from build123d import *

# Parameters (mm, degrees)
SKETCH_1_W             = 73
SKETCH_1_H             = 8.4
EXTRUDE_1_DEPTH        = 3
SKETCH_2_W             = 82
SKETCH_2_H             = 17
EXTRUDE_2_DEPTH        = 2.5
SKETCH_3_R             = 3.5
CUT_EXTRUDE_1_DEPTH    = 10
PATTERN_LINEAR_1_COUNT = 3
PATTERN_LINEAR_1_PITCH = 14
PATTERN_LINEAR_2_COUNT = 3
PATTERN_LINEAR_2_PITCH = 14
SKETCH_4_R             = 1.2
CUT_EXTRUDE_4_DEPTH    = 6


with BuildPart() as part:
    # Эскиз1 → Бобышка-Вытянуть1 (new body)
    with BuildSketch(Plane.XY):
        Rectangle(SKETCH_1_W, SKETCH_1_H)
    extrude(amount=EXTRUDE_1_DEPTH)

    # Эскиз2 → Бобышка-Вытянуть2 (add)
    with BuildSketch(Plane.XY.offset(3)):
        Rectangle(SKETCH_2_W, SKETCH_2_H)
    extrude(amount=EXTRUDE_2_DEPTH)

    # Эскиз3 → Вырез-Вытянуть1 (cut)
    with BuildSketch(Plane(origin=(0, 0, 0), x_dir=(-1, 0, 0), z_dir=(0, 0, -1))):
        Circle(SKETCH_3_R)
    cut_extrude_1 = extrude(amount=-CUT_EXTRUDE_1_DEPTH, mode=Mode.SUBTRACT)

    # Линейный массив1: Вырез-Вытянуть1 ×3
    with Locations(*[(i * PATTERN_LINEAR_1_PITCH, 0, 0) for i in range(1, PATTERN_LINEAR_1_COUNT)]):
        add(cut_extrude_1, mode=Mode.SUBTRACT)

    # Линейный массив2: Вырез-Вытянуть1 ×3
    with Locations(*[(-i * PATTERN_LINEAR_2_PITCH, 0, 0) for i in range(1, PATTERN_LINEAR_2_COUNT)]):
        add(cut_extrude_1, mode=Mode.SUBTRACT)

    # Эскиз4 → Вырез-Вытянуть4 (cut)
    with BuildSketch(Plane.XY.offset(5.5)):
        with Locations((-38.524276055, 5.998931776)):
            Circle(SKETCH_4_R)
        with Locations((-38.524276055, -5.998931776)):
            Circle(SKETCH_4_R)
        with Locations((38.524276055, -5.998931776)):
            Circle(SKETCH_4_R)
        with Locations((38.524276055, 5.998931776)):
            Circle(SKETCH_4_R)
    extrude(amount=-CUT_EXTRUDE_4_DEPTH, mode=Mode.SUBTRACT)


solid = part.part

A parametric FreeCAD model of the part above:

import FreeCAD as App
import Part
import Sketcher

V = App.Vector
Q = App.Units.Quantity

doc = App.newDocument("Part")
params = doc.addObject("Spreadsheet::Sheet", "Params")
for row, (alias, value) in enumerate([
    ("sketch1_width", "73 mm"),
    ("sketch1_height", "8.4 mm"),
    ("pad1_length", "3 mm"),
    ("sketch2_width", "82 mm"),
    ("sketch2_height", "17 mm"),
    ("pad2_length", "2.5 mm"),
    ("sketch3_diameter", "7 mm"),
    ("pocket1_length", "10 mm"),
    ("linearpattern_pitch", "14 mm"),
    ("linearpattern2_pitch", "14 mm"),
    ("sketch4_diameter", "2.4 mm"),
    ("pocket2_length", "6 mm"),
], start=1):
    params.set(f"A{row}", alias)
    params.set(f"B{row}", "=" + value)
    params.setAlias(f"B{row}", alias)

body = doc.addObject("PartDesign::Body", "Body")

# Sketch on XY plane
sketch1 = body.newObject("Sketcher::SketchObject", "Sketch")
sketch1.AttachmentSupport = (doc.getObject("XY_Plane"), [""])
sketch1.MapMode = "FlatFace"
sketch1.addGeometry(Part.LineSegment(V(-36, 4, 0), V(-36, -4, 0)), False)
sketch1.addGeometry(Part.LineSegment(V(-36, -4, 0), V(36, -4, 0)), False)
sketch1.addGeometry(Part.LineSegment(V(36, -4, 0), V(36, 4, 0)), False)
sketch1.addGeometry(Part.LineSegment(V(36, 4, 0), V(-36, 4, 0)), False)
sketch1.addConstraint(Sketcher.Constraint("Coincident", 0, 2, 1, 1))
sketch1.addConstraint(Sketcher.Constraint("Coincident", 1, 2, 2, 1))
sketch1.addConstraint(Sketcher.Constraint("Coincident", 2, 2, 3, 1))
sketch1.addConstraint(Sketcher.Constraint("Coincident", 3, 2, 0, 1))
sketch1.addConstraint(Sketcher.Constraint("Vertical", 0))
sketch1.addConstraint(Sketcher.Constraint("Horizontal", 1))
sketch1.addConstraint(Sketcher.Constraint("Vertical", 2))
sketch1.addConstraint(Sketcher.Constraint("Horizontal", 3))
sketch1.addConstraint(Sketcher.Constraint("Symmetric", 0, 2, 2, 2, -1, 1))
sketch1.addConstraint(Sketcher.Constraint("DistanceX", 1, 1, 1, 2, Q("73 mm")))
sketch1.addConstraint(Sketcher.Constraint("DistanceY", 0, 2, 0, 1, Q("8.4 mm")))
sketch1.setExpression("Constraints[9]", "Params.sketch1_width")
sketch1.setExpression("Constraints[10]", "Params.sketch1_height")
pad1 = body.newObject("PartDesign::Pad", "Pad")
pad1.Profile = sketch1
pad1.setExpression("Length", "Params.pad1_length")

# Sketch on XY plane
sketch2 = body.newObject("Sketcher::SketchObject", "Sketch001")
sketch2.AttachmentSupport = (doc.getObject("XY_Plane"), [""])
sketch2.MapMode = "FlatFace"
sketch2.AttachmentOffset = App.Placement(V(0, 0, 3), App.Rotation())
sketch2.addGeometry(Part.LineSegment(V(-41, 8, 0), V(-41, -8, 0)), False)
sketch2.addGeometry(Part.LineSegment(V(-41, -8, 0), V(41, -8, 0)), False)
sketch2.addGeometry(Part.LineSegment(V(41, -8, 0), V(41, 8, 0)), False)
sketch2.addGeometry(Part.LineSegment(V(41, 8, 0), V(-41, 8, 0)), False)
sketch2.addConstraint(Sketcher.Constraint("Coincident", 0, 2, 1, 1))
sketch2.addConstraint(Sketcher.Constraint("Coincident", 1, 2, 2, 1))
sketch2.addConstraint(Sketcher.Constraint("Coincident", 2, 2, 3, 1))
sketch2.addConstraint(Sketcher.Constraint("Coincident", 3, 2, 0, 1))
sketch2.addConstraint(Sketcher.Constraint("Vertical", 0))
sketch2.addConstraint(Sketcher.Constraint("Horizontal", 1))
sketch2.addConstraint(Sketcher.Constraint("Vertical", 2))
sketch2.addConstraint(Sketcher.Constraint("Horizontal", 3))
sketch2.addConstraint(Sketcher.Constraint("Symmetric", 0, 2, 2, 2, -1, 1))
sketch2.addConstraint(Sketcher.Constraint("DistanceX", 1, 1, 1, 2, Q("82 mm")))
sketch2.addConstraint(Sketcher.Constraint("DistanceY", 0, 2, 0, 1, Q("17 mm")))
sketch2.setExpression("Constraints[9]", "Params.sketch2_width")
sketch2.setExpression("Constraints[10]", "Params.sketch2_height")
pad2 = body.newObject("PartDesign::Pad", "Pad001")
pad2.Profile = sketch2
pad2.setExpression("Length", "Params.pad2_length")

# Sketch on XY plane
sketch3 = body.newObject("Sketcher::SketchObject", "Sketch002")
sketch3.AttachmentSupport = (doc.getObject("XY_Plane"), [""])
sketch3.MapMode = "FlatFace"
sketch3.addGeometry(Part.Circle(V(0, 0, 0), V(0, 0, 1), 3.5), False)
sketch3.addConstraint(Sketcher.Constraint("Coincident", 0, 3, -1, 1))
sketch3.addConstraint(Sketcher.Constraint("Diameter", 0, Q("7 mm")))
sketch3.setExpression("Constraints[1]", "Params.sketch3_diameter")
pocket1 = body.newObject("PartDesign::Pocket", "Pocket")
pocket1.Profile = sketch3
pocket1.setExpression("Length", "Params.pocket1_length")
pocket1.Reversed = True
doc.recompute()

linearpattern = body.newObject("PartDesign::LinearPattern", "LinearPattern")
linearpattern.Originals = [pocket1]
linearpattern.Direction = (doc.getObject("X_Axis"), [""])
linearpattern.Mode = "offset"
linearpattern.setExpression("Offset", "Params.linearpattern_pitch")
linearpattern.Occurrences = 3
body.Tip = linearpattern
doc.recompute()

linearpattern2 = body.newObject("PartDesign::LinearPattern", "LinearPattern001")
linearpattern2.Originals = [pocket1]
linearpattern2.Direction = (doc.getObject("X_Axis"), [""])
linearpattern2.Mode = "offset"
linearpattern2.setExpression("Offset", "Params.linearpattern2_pitch")
linearpattern2.Occurrences = 3
linearpattern2.Reversed = True
body.Tip = linearpattern2

# Sketch on XY plane
sketch4 = body.newObject("Sketcher::SketchObject", "Sketch003")
sketch4.AttachmentSupport = (doc.getObject("XY_Plane"), [""])
sketch4.MapMode = "FlatFace"
sketch4.AttachmentOffset = App.Placement(V(0, 0, 5.5), App.Rotation())
sketch4.addGeometry(Part.Circle(V(-38.5, 6, 0), V(0, 0, 1), 1.2), False)
sketch4.addGeometry(Part.Circle(V(-38.5, -6, 0), V(0, 0, 1), 1.2), False)
sketch4.addGeometry(Part.Circle(V(38.5, -6, 0), V(0, 0, 1), 1.2), False)
sketch4.addGeometry(Part.Circle(V(38.5, 6, 0), V(0, 0, 1), 1.2), False)
sketch4.addConstraint(Sketcher.Constraint("Equal", 0, 1))
sketch4.addConstraint(Sketcher.Constraint("Equal", 1, 2))
sketch4.addConstraint(Sketcher.Constraint("Equal", 2, 3))
sketch4.addConstraint(Sketcher.Constraint("Symmetric", 0, 3, 2, 3, -1, 1))
sketch4.addConstraint(Sketcher.Constraint("Symmetric", 1, 3, 3, 3, -1, 1))
sketch4.addConstraint(Sketcher.Constraint("Symmetric", 1, 3, 2, 3, -2))
sketch4.addConstraint(Sketcher.Constraint("Diameter", 0, Q("2.4 mm")))
sketch4.addConstraint(Sketcher.Constraint("DistanceY", -1, 1, 0, 3, Q("5.998932 mm")))
sketch4.addConstraint(Sketcher.Constraint("DistanceX", 0, 3, -1, 1, Q("38.524276 mm")))
sketch4.setExpression("Constraints[6]", "Params.sketch4_diameter")
pocket2 = body.newObject("PartDesign::Pocket", "Pocket001")
pocket2.Profile = sketch4
pocket2.setExpression("Length", "Params.pocket2_length")

doc.recompute()
